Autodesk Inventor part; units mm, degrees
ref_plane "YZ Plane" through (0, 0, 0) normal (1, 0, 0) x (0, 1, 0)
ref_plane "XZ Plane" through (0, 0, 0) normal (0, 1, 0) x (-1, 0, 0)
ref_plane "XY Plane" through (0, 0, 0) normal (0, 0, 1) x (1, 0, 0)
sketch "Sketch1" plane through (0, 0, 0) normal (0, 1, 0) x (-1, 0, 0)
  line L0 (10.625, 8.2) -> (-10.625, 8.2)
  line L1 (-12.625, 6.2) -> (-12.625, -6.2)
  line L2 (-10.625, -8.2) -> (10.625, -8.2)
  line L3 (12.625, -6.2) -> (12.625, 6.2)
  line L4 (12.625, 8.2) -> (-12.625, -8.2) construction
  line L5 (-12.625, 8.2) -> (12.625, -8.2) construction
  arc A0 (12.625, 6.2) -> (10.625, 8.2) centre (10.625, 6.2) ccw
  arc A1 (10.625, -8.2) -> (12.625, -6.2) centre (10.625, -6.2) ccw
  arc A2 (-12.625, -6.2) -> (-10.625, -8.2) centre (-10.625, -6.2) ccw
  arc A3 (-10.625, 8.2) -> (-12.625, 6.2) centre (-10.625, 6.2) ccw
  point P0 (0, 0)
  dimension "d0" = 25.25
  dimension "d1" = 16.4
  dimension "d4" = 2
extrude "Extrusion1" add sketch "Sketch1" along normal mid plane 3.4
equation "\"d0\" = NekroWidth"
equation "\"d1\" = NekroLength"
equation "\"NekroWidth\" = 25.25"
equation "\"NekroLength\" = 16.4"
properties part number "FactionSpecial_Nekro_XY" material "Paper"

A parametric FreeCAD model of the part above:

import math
import FreeCAD as App
import Part
import Sketcher

V = App.Vector

doc = App.newDocument("Part")
body = doc.addObject("PartDesign::Body", "Body")

sketch1 = doc.addObject("Sketcher::SketchObject", "Sketch")
body.addObject(sketch1)
sketch1.AttachmentSupport = (doc.XZ_Plane, [""])
sketch1.MapMode = "FlatFace"
sketch1.addGeometry([
    Part.ArcOfCircle(Part.Circle(V(-10.6, 6.2, 0), V(0, 0, 1), 2), math.radians(90), math.radians(180)),
    Part.LineSegment(V(-10.6, 8.2, 0), V(10.6, 8.2, 0)),
    Part.ArcOfCircle(Part.Circle(V(10.6, 6.2, 0), V(0, 0, 1), 2), math.radians(0), math.radians(90)),
    Part.LineSegment(V(12.6, 6.2, 0), V(12.6, -6.2, 0)),
    Part.ArcOfCircle(Part.Circle(V(10.6, -6.2, 0), V(0, 0, 1), 2), math.radians(-90), math.radians(0)),
    Part.LineSegment(V(10.6, -8.2, 0), V(-10.6, -8.2, 0)),
    Part.ArcOfCircle(Part.Circle(V(-10.6, -6.2, 0), V(0, 0, 1), 2), math.radians(180), math.radians(270)),
    Part.LineSegment(V(-12.6, -6.2, 0), V(-12.6, 6.2, 0)),
], False)
sketch1.addConstraint([
    Sketcher.Constraint("Tangent", 0, 1, 1, 1),
    Sketcher.Constraint("Tangent", 1, 2, 2, 2),
    Sketcher.Constraint("Tangent", 2, 1, 3, 1),
    Sketcher.Constraint("Tangent", 3, 2, 4, 2),
    Sketcher.Constraint("Tangent", 4, 1, 5, 1),
    Sketcher.Constraint("Tangent", 5, 2, 6, 2),
    Sketcher.Constraint("Tangent", 6, 1, 7, 1),
    Sketcher.Constraint("Tangent", 7, 2, 0, 2),
    Sketcher.Constraint("Horizontal", 1),
    Sketcher.Constraint("Vertical", 3),
    Sketcher.Constraint("Horizontal", 5),
    Sketcher.Constraint("Vertical", 7),
    Sketcher.Constraint("Equal", 0, 2),
    Sketcher.Constraint("Equal", 2, 4),
    Sketcher.Constraint("Equal", 4, 6),
    Sketcher.Constraint("Symmetric", 0, 3, 4, 3, -1, 1),
    Sketcher.Constraint("Radius", 0, 2.0),
    Sketcher.Constraint("DistanceY", 4, 1, 1, 2, 16.4),
    Sketcher.Constraint("DistanceX", 1, 1, 1, 2, 21.25),
])
pad1 = doc.addObject("PartDesign::Pad", "Pad")
body.addObject(pad1)
pad1.Profile = sketch1
pad1.Length = 3.4
pad1.Midplane = True

doc.recompute()
